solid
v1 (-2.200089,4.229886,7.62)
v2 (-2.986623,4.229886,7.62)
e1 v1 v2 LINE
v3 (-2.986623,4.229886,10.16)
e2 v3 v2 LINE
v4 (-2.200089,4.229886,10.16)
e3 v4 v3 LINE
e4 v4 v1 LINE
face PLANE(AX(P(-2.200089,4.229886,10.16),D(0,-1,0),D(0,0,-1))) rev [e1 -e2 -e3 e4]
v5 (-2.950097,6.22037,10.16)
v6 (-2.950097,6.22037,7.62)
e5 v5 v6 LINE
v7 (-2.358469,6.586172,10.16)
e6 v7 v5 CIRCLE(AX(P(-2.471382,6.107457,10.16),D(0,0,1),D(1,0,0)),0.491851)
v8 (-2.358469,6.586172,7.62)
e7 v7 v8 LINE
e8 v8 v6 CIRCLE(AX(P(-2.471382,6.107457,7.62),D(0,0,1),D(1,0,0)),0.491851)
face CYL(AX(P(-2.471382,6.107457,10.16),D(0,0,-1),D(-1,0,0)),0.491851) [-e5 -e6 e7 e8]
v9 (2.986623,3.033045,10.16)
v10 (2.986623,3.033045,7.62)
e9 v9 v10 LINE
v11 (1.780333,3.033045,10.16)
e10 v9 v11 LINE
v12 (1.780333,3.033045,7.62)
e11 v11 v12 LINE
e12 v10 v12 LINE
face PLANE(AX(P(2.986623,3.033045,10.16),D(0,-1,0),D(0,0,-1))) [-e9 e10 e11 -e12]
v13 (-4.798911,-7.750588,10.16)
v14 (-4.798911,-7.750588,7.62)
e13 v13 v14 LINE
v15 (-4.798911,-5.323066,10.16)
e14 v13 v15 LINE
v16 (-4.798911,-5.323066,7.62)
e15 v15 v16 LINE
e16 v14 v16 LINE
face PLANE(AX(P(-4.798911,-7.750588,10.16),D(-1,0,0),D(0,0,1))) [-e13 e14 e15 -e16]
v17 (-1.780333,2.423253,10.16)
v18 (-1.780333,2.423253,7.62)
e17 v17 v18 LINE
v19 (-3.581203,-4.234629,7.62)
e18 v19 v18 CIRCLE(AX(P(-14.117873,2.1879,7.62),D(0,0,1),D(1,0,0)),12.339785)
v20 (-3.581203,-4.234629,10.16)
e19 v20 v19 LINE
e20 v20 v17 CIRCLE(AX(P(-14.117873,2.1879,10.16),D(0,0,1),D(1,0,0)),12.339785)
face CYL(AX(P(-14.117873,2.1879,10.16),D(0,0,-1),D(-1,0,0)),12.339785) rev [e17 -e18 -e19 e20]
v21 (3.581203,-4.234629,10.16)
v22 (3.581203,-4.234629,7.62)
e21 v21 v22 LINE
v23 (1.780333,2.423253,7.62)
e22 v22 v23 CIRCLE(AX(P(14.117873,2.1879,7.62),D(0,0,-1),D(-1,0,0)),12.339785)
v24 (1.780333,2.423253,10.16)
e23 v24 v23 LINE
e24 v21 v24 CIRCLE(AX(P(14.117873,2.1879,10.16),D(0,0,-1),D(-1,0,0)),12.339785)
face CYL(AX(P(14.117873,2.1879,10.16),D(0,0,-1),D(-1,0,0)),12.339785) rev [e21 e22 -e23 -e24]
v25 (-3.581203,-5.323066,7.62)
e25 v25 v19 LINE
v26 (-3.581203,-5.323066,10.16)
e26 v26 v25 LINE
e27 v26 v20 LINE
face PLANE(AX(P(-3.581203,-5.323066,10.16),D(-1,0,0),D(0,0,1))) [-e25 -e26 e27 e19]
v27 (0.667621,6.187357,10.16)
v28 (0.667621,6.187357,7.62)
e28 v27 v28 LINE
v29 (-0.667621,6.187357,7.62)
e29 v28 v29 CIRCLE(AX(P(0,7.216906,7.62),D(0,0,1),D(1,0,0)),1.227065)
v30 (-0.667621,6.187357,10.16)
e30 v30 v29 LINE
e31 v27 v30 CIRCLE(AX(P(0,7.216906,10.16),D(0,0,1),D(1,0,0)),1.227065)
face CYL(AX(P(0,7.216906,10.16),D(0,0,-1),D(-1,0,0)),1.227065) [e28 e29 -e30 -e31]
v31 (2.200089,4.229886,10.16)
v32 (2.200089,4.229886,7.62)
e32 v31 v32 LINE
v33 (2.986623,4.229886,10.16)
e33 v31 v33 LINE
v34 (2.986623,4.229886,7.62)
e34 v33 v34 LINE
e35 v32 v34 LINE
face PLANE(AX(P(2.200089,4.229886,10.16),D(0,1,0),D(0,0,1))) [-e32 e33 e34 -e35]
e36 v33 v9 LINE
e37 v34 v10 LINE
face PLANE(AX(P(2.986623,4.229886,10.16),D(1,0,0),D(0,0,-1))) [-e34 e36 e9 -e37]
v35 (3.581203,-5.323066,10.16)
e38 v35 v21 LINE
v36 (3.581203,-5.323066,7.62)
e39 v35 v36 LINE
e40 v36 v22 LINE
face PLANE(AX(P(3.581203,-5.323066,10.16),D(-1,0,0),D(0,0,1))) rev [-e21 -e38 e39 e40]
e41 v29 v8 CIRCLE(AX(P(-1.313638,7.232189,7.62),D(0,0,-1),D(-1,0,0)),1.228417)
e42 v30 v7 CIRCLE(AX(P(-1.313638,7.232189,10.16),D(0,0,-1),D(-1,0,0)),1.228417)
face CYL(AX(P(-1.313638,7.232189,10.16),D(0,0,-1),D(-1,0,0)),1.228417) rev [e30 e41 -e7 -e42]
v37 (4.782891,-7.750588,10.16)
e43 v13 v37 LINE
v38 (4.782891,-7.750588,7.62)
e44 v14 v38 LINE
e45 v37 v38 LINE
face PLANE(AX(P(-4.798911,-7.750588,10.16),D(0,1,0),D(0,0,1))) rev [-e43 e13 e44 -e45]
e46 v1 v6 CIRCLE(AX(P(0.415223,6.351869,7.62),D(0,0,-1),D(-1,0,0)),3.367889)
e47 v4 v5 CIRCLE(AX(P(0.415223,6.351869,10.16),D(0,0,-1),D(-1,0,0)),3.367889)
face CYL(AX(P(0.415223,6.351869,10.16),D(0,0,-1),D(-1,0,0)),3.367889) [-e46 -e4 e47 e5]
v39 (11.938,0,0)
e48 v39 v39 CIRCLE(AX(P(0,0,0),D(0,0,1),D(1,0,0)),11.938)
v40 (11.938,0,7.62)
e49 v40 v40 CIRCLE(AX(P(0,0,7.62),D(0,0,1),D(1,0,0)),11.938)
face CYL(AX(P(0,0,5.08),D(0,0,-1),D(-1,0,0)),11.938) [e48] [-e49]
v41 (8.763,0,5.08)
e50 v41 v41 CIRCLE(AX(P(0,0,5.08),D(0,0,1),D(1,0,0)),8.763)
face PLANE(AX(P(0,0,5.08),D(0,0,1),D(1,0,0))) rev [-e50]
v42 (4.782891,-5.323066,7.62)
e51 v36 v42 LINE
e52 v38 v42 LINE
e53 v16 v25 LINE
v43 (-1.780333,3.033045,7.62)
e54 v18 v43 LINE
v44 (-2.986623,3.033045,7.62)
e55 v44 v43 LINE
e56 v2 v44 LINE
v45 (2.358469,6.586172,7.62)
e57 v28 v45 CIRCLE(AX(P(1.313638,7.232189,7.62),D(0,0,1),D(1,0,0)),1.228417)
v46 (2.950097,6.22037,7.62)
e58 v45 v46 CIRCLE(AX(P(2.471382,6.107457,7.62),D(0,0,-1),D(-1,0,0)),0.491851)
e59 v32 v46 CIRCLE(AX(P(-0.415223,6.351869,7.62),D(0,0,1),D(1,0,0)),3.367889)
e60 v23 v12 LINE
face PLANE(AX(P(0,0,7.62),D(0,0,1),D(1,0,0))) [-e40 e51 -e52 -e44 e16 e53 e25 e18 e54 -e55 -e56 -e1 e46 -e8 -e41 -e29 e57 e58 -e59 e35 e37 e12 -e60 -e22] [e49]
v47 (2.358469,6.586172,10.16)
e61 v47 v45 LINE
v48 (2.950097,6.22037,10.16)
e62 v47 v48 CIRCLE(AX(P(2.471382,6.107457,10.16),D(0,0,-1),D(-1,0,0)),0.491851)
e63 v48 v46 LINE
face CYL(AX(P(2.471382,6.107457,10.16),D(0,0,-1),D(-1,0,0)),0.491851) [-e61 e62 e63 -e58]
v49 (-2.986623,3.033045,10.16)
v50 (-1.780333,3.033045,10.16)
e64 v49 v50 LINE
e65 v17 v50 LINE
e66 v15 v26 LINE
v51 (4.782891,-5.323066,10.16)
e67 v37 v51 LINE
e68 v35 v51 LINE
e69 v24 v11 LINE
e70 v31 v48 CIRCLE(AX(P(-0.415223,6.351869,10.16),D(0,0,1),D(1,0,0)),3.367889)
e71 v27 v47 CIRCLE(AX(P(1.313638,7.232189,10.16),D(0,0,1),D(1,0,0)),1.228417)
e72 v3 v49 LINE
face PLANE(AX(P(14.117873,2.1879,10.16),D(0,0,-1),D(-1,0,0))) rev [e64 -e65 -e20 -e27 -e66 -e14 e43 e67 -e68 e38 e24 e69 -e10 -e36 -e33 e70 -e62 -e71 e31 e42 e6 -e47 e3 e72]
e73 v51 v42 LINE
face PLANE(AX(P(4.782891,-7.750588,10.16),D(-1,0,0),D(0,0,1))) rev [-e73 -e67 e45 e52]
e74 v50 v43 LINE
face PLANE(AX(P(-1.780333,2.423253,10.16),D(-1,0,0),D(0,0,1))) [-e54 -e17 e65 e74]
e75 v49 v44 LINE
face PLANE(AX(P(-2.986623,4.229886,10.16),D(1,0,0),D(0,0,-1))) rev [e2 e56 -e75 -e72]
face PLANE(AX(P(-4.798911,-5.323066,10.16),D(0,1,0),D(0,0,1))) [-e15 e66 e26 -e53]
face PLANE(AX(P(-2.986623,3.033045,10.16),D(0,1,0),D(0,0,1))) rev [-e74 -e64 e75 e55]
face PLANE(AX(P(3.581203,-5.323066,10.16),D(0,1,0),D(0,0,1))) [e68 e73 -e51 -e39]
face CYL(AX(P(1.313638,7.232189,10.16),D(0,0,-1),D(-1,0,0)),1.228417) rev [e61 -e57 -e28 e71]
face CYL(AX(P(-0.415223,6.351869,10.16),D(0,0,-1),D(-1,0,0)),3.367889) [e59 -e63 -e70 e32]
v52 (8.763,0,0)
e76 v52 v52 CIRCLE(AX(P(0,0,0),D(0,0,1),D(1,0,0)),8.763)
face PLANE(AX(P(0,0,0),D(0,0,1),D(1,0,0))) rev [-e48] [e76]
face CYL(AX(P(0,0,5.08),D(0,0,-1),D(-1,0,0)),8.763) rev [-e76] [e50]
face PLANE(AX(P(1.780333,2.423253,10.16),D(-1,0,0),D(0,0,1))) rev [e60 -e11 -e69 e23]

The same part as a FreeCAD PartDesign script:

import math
import FreeCAD as App
import Part
import Sketcher
from FreeCAD import Vector
Q = App.Units.Quantity

doc = App.newDocument("Part")
params = doc.addObject("Spreadsheet::Sheet", "Params")
for row, (alias, value) in enumerate([
    ("sketch1_diameter", "0.94 in"),
    ("sketch1_diameter2", "0.69 in"),
    ("pad1_length", "0.2 in"),
    ("sketch2_diameter", "0.94 in"),
    ("pad2_length", "0.1 in"),
    ("pad3_length", "0.1 in"),
], start=1):
    params.set(f"A{row}", alias)
    params.set(f"B{row}", "=" + value)
    params.setAlias(f"B{row}", alias)

body = doc.addObject("PartDesign::Body", "Body")

sketch1 = body.newObject("Sketcher::SketchObject", "Sketch")
sketch1.AttachmentSupport = (doc.getObject("XY_Plane"), [""])
sketch1.MapMode = "FlatFace"
sketch1.addGeometry([
    Part.Circle(Vector(0, 0, 0), Vector(0, 0, 1), 12),
    Part.Circle(Vector(0, 0, 0), Vector(0, 0, 1), 9),
], False)
sketch1.addConstraint([
    Sketcher.Constraint("Coincident", 0, 3, -1, 1),
    Sketcher.Constraint("Coincident", 1, 3, -1, 1),
    Sketcher.Constraint("Diameter", 0, Q("0.94 in")),
    Sketcher.Constraint("Diameter", 1, Q("0.69 in")),
])
sketch1.setExpression("Constraints[2]", "Params.sketch1_diameter")
sketch1.setExpression("Constraints[3]", "Params.sketch1_diameter2")
pad1 = body.newObject("PartDesign::Pad", "Pad")
pad1.Profile = sketch1
pad1.setExpression("Length", "Params.pad1_length")

sketch2 = body.newObject("Sketcher::SketchObject", "Sketch001")
sketch2.AttachmentSupport = (doc.getObject("XY_Plane"), [""])
sketch2.MapMode = "FlatFace"
sketch2.AttachmentOffset = App.Placement(Vector(0, 0, 0.2 * 25.4), App.Rotation())
sketch2.addGeometry(Part.Circle(Vector(0, 0, 0), Vector(0, 0, 1), 12), False)
sketch2.addConstraint([
    Sketcher.Constraint("Coincident", 0, 3, -1, 1),
    Sketcher.Constraint("Diameter", 0, Q("0.94 in")),
])
sketch2.setExpression("Constraints[1]", "Params.sketch2_diameter")
pad2 = body.newObject("PartDesign::Pad", "Pad001")
pad2.Profile = sketch2
pad2.setExpression("Length", "Params.pad2_length")

sketch3 = body.newObject("Sketcher::SketchObject", "Sketch002")
sketch3.AttachmentSupport = (doc.getObject("XY_Plane"), [""])
sketch3.MapMode = "FlatFace"
sketch3.AttachmentOffset = App.Placement(Vector(0, 0, 0.3 * 25.4), App.Rotation())
sketch3.addGeometry([
    Part.LineSegment(Vector(-3.58, -4.23, 0), Vector(-3.58, -5.32, 0)),
    Part.LineSegment(Vector(-3.58, -5.32, 0), Vector(-4.8, -5.32, 0)),
    Part.LineSegment(Vector(-4.8, -5.32, 0), Vector(-4.8, -7.75, 0)),
    Part.LineSegment(Vector(-4.8, -7.75, 0), Vector(4.78, -7.75, 0)),
    Part.LineSegment(Vector(4.78, -7.75, 0), Vector(4.78, -5.32, 0)),
    Part.LineSegment(Vector(4.78, -5.32, 0), Vector(3.58, -5.32, 0)),
    Part.LineSegment(Vector(3.58, -5.32, 0), Vector(3.58, -4.23, 0)),
    Part.ArcOfCircle(Part.Circle(Vector(14.12, 2.19, 0), Vector(0, 0, 1), 12.34), math.radians(179), math.radians(211)),
    Part.LineSegment(Vector(1.78, 2.42, 0), Vector(1.78, 3.03, 0)),
    Part.LineSegment(Vector(1.78, 3.03, 0), Vector(2.99, 3.03, 0)),
    Part.LineSegment(Vector(2.99, 3.03, 0), Vector(2.99, 4.23, 0)),
    Part.LineSegment(Vector(2.99, 4.23, 0), Vector(2.2, 4.23, 0)),
    Part.ArcOfCircle(Part.Circle(Vector(-0.42, 6.35, 0), Vector(0, 0, 1), 3.37), math.radians(-39), math.radians(-2)),
    Part.ArcOfCircle(Part.Circle(Vector(2.47, 6.11, 0), Vector(0, 0, 1), 0.49), math.radians(13), math.radians(103)),
    Part.ArcOfCircle(Part.Circle(Vector(1.31, 7.23, 0), Vector(0, 0, 1), 1.23), math.radians(-122), math.radians(-32)),
    Part.ArcOfCircle(Part.Circle(Vector(0, 7.22, 0), Vector(0, 0, 1), 1.23), math.radians(-57), math.radians(237)),
    Part.ArcOfCircle(Part.Circle(Vector(-1.31, 7.23, 0), Vector(0, 0, 1), 1.23), math.radians(-148), math.radians(-58)),
    Part.ArcOfCircle(Part.Circle(Vector(-2.47, 6.11, 0), Vector(0, 0, 1), 0.49), math.radians(77), math.radians(167)),
    Part.ArcOfCircle(Part.Circle(Vector(0.42, 6.35, 0), Vector(0, 0, 1), 3.37), math.radians(-178), math.radians(-141)),
    Part.LineSegment(Vector(-2.2, 4.23, 0), Vector(-2.99, 4.23, 0)),
    Part.LineSegment(Vector(-2.99, 4.23, 0), Vector(-2.99, 3.03, 0)),
    Part.LineSegment(Vector(-2.99, 3.03, 0), Vector(-1.78, 3.03, 0)),
    Part.LineSegment(Vector(-1.78, 3.03, 0), Vector(-1.78, 2.42, 0)),
    Part.ArcOfCircle(Part.Circle(Vector(-14.12, 2.19, 0), Vector(0, 0, 1), 12.34), math.radians(-31), math.radians(1)),
], False)
sketch3.addConstraint([
    Sketcher.Constraint("Coincident", 0, 2, 1, 1),
    Sketcher.Constraint("Coincident", 1, 2, 2, 1),
    Sketcher.Constraint("Coincident", 2, 2, 3, 1),
    Sketcher.Constraint("Coincident", 3, 2, 4, 1),
    Sketcher.Constraint("Coincident", 4, 2, 5, 1),
    Sketcher.Constraint("Coincident", 5, 2, 6, 1),
    Sketcher.Constraint("Coincident", 6, 2, 7, 2),
    Sketcher.Constraint("Coincident", 7, 1, 8, 1),
    Sketcher.Constraint("Coincident", 8, 2, 9, 1),
    Sketcher.Constraint("Coincident", 9, 2, 10, 1),
    Sketcher.Constraint("Coincident", 10, 2, 11, 1),
    Sketcher.Constraint("Coincident", 11, 2, 12, 1),
    Sketcher.Constraint("Coincident", 12, 2, 13, 1),
    Sketcher.Constraint("Coincident", 13, 2, 14, 2),
    Sketcher.Constraint("Coincident", 14, 1, 15, 1),
    Sketcher.Constraint("Coincident", 15, 2, 16, 2),
    Sketcher.Constraint("Coincident", 16, 1, 17, 1),
    Sketcher.Constraint("Coincident", 17, 2, 18, 1),
    Sketcher.Constraint("Coincident", 18, 2, 19, 1),
    Sketcher.Constraint("Coincident", 19, 2, 20, 1),
    Sketcher.Constraint("Coincident", 20, 2, 21, 1),
    Sketcher.Constraint("Coincident", 21, 2, 22, 1),
    Sketcher.Constraint("Coincident", 22, 2, 23, 2),
    Sketcher.Constraint("Coincident", 23, 1, 0, 1),
    Sketcher.Constraint("Vertical", 0),
    Sketcher.Constraint("Horizontal", 1),
    Sketcher.Constraint("Vertical", 2),
    Sketcher.Constraint("Horizontal", 3),
    Sketcher.Constraint("Vertical", 4),
    Sketcher.Constraint("Horizontal", 5),
    Sketcher.Constraint("Vertical", 6),
    Sketcher.Constraint("Vertical", 8),
    Sketcher.Constraint("Horizontal", 9),
    Sketcher.Constraint("Vertical", 10),
    Sketcher.Constraint("Horizontal", 11),
    Sketcher.Constraint("Horizontal", 19),
    Sketcher.Constraint("Vertical", 20),
    Sketcher.Constraint("Horizontal", 21),
    Sketcher.Constraint("Vertical", 22),
    Sketcher.Constraint("Equal", 14, 16),
    Sketcher.Constraint("Equal", 13, 17),
    Sketcher.Constraint("Equal", 12, 18),
    Sketcher.Constraint("Equal", 7, 23),
    Sketcher.Constraint("Symmetric", 14, 3, 16, 3, -2),
    Sketcher.Constraint("Symmetric", 13, 3, 17, 3, -2),
    Sketcher.Constraint("Symmetric", 12, 3, 18, 3, -2),
    Sketcher.Constraint("Symmetric", 7, 3, 23, 3, -2),
    Sketcher.Constraint("Symmetric", 0, 2, 5, 2, -2),
    Sketcher.Constraint("Symmetric", 10, 2, 19, 2, -2),
    Sketcher.Constraint("Symmetric", 8, 2, 21, 2, -2),
    Sketcher.Constraint("PointOnObject", 15, 3, -2),
    Sketcher.Constraint("Radius", 12, Q("3.367889 mm")),
    Sketcher.Constraint("Radius", 13, Q("0.491851 mm")),
    Sketcher.Constraint("DistanceX", 3, 1, 3, 2, Q("9.581802 mm")),
    Sketcher.Constraint("Radius", 7, Q("12.339785 mm")),
    Sketcher.Constraint("Radius", 14, Q("1.228417 mm")),
    Sketcher.Constraint("Radius", 15, Q("1.227065 mm")),
    Sketcher.Constraint("DistanceX", 9, 1, 9, 2, Q("1.20629 mm")),
    Sketcher.Constraint("DistanceY", 2, 2, 2, 1, Q("2.427521 mm")),
    Sketcher.Constraint("DistanceY", 10, 1, 10, 2, Q("1.196841 mm")),
    Sketcher.Constraint("DistanceY", -1, 1, 7, 3, Q("2.1879 mm")),
    Sketcher.Constraint("DistanceX", 18, 3, 9, 2, Q("2.5714 mm")),
    Sketcher.Constraint("DistanceY", 12, 2, 18, 3, Q("0.131499 mm")),
    Sketcher.Constraint("DistanceX", 1, 2, 1, 1, Q("1.217708 mm")),
    Sketcher.Constraint("DistanceX", 5, 2, 5, 1, Q("1.201688 mm")),
    Sketcher.Constraint("DistanceX", 11, 2, 11, 1, Q("0.786534 mm")),
    Sketcher.Constraint("DistanceY", 0, 2, 0, 1, Q("1.088437 mm")),
    Sketcher.Constraint("DistanceY", 8, 1, 8, 2, Q("0.609792 mm")),
    Sketcher.Constraint("DistanceY", -1, 1, 12, 3, Q("6.351869 mm")),
    Sketcher.Constraint("DistanceX", -1, 1, 13, 3, Q("2.471382 mm")),
    Sketcher.Constraint("DistanceY", -1, 1, 14, 3, Q("7.232189 mm")),
    Sketcher.Constraint("DistanceY", 6, 2, -1, 1, Q("4.234629 mm")),
    Sketcher.Constraint("DistanceX", -1, 1, 13, 2, Q("2.358469 mm")),
    Sketcher.Constraint("DistanceX", -1, 1, 14, 1, Q("0.667621 mm")),
])
pad3 = body.newObject("PartDesign::Pad", "Pad002")
pad3.Profile = sketch3
pad3.setExpression("Length", "Params.pad3_length")

doc.recompute()
